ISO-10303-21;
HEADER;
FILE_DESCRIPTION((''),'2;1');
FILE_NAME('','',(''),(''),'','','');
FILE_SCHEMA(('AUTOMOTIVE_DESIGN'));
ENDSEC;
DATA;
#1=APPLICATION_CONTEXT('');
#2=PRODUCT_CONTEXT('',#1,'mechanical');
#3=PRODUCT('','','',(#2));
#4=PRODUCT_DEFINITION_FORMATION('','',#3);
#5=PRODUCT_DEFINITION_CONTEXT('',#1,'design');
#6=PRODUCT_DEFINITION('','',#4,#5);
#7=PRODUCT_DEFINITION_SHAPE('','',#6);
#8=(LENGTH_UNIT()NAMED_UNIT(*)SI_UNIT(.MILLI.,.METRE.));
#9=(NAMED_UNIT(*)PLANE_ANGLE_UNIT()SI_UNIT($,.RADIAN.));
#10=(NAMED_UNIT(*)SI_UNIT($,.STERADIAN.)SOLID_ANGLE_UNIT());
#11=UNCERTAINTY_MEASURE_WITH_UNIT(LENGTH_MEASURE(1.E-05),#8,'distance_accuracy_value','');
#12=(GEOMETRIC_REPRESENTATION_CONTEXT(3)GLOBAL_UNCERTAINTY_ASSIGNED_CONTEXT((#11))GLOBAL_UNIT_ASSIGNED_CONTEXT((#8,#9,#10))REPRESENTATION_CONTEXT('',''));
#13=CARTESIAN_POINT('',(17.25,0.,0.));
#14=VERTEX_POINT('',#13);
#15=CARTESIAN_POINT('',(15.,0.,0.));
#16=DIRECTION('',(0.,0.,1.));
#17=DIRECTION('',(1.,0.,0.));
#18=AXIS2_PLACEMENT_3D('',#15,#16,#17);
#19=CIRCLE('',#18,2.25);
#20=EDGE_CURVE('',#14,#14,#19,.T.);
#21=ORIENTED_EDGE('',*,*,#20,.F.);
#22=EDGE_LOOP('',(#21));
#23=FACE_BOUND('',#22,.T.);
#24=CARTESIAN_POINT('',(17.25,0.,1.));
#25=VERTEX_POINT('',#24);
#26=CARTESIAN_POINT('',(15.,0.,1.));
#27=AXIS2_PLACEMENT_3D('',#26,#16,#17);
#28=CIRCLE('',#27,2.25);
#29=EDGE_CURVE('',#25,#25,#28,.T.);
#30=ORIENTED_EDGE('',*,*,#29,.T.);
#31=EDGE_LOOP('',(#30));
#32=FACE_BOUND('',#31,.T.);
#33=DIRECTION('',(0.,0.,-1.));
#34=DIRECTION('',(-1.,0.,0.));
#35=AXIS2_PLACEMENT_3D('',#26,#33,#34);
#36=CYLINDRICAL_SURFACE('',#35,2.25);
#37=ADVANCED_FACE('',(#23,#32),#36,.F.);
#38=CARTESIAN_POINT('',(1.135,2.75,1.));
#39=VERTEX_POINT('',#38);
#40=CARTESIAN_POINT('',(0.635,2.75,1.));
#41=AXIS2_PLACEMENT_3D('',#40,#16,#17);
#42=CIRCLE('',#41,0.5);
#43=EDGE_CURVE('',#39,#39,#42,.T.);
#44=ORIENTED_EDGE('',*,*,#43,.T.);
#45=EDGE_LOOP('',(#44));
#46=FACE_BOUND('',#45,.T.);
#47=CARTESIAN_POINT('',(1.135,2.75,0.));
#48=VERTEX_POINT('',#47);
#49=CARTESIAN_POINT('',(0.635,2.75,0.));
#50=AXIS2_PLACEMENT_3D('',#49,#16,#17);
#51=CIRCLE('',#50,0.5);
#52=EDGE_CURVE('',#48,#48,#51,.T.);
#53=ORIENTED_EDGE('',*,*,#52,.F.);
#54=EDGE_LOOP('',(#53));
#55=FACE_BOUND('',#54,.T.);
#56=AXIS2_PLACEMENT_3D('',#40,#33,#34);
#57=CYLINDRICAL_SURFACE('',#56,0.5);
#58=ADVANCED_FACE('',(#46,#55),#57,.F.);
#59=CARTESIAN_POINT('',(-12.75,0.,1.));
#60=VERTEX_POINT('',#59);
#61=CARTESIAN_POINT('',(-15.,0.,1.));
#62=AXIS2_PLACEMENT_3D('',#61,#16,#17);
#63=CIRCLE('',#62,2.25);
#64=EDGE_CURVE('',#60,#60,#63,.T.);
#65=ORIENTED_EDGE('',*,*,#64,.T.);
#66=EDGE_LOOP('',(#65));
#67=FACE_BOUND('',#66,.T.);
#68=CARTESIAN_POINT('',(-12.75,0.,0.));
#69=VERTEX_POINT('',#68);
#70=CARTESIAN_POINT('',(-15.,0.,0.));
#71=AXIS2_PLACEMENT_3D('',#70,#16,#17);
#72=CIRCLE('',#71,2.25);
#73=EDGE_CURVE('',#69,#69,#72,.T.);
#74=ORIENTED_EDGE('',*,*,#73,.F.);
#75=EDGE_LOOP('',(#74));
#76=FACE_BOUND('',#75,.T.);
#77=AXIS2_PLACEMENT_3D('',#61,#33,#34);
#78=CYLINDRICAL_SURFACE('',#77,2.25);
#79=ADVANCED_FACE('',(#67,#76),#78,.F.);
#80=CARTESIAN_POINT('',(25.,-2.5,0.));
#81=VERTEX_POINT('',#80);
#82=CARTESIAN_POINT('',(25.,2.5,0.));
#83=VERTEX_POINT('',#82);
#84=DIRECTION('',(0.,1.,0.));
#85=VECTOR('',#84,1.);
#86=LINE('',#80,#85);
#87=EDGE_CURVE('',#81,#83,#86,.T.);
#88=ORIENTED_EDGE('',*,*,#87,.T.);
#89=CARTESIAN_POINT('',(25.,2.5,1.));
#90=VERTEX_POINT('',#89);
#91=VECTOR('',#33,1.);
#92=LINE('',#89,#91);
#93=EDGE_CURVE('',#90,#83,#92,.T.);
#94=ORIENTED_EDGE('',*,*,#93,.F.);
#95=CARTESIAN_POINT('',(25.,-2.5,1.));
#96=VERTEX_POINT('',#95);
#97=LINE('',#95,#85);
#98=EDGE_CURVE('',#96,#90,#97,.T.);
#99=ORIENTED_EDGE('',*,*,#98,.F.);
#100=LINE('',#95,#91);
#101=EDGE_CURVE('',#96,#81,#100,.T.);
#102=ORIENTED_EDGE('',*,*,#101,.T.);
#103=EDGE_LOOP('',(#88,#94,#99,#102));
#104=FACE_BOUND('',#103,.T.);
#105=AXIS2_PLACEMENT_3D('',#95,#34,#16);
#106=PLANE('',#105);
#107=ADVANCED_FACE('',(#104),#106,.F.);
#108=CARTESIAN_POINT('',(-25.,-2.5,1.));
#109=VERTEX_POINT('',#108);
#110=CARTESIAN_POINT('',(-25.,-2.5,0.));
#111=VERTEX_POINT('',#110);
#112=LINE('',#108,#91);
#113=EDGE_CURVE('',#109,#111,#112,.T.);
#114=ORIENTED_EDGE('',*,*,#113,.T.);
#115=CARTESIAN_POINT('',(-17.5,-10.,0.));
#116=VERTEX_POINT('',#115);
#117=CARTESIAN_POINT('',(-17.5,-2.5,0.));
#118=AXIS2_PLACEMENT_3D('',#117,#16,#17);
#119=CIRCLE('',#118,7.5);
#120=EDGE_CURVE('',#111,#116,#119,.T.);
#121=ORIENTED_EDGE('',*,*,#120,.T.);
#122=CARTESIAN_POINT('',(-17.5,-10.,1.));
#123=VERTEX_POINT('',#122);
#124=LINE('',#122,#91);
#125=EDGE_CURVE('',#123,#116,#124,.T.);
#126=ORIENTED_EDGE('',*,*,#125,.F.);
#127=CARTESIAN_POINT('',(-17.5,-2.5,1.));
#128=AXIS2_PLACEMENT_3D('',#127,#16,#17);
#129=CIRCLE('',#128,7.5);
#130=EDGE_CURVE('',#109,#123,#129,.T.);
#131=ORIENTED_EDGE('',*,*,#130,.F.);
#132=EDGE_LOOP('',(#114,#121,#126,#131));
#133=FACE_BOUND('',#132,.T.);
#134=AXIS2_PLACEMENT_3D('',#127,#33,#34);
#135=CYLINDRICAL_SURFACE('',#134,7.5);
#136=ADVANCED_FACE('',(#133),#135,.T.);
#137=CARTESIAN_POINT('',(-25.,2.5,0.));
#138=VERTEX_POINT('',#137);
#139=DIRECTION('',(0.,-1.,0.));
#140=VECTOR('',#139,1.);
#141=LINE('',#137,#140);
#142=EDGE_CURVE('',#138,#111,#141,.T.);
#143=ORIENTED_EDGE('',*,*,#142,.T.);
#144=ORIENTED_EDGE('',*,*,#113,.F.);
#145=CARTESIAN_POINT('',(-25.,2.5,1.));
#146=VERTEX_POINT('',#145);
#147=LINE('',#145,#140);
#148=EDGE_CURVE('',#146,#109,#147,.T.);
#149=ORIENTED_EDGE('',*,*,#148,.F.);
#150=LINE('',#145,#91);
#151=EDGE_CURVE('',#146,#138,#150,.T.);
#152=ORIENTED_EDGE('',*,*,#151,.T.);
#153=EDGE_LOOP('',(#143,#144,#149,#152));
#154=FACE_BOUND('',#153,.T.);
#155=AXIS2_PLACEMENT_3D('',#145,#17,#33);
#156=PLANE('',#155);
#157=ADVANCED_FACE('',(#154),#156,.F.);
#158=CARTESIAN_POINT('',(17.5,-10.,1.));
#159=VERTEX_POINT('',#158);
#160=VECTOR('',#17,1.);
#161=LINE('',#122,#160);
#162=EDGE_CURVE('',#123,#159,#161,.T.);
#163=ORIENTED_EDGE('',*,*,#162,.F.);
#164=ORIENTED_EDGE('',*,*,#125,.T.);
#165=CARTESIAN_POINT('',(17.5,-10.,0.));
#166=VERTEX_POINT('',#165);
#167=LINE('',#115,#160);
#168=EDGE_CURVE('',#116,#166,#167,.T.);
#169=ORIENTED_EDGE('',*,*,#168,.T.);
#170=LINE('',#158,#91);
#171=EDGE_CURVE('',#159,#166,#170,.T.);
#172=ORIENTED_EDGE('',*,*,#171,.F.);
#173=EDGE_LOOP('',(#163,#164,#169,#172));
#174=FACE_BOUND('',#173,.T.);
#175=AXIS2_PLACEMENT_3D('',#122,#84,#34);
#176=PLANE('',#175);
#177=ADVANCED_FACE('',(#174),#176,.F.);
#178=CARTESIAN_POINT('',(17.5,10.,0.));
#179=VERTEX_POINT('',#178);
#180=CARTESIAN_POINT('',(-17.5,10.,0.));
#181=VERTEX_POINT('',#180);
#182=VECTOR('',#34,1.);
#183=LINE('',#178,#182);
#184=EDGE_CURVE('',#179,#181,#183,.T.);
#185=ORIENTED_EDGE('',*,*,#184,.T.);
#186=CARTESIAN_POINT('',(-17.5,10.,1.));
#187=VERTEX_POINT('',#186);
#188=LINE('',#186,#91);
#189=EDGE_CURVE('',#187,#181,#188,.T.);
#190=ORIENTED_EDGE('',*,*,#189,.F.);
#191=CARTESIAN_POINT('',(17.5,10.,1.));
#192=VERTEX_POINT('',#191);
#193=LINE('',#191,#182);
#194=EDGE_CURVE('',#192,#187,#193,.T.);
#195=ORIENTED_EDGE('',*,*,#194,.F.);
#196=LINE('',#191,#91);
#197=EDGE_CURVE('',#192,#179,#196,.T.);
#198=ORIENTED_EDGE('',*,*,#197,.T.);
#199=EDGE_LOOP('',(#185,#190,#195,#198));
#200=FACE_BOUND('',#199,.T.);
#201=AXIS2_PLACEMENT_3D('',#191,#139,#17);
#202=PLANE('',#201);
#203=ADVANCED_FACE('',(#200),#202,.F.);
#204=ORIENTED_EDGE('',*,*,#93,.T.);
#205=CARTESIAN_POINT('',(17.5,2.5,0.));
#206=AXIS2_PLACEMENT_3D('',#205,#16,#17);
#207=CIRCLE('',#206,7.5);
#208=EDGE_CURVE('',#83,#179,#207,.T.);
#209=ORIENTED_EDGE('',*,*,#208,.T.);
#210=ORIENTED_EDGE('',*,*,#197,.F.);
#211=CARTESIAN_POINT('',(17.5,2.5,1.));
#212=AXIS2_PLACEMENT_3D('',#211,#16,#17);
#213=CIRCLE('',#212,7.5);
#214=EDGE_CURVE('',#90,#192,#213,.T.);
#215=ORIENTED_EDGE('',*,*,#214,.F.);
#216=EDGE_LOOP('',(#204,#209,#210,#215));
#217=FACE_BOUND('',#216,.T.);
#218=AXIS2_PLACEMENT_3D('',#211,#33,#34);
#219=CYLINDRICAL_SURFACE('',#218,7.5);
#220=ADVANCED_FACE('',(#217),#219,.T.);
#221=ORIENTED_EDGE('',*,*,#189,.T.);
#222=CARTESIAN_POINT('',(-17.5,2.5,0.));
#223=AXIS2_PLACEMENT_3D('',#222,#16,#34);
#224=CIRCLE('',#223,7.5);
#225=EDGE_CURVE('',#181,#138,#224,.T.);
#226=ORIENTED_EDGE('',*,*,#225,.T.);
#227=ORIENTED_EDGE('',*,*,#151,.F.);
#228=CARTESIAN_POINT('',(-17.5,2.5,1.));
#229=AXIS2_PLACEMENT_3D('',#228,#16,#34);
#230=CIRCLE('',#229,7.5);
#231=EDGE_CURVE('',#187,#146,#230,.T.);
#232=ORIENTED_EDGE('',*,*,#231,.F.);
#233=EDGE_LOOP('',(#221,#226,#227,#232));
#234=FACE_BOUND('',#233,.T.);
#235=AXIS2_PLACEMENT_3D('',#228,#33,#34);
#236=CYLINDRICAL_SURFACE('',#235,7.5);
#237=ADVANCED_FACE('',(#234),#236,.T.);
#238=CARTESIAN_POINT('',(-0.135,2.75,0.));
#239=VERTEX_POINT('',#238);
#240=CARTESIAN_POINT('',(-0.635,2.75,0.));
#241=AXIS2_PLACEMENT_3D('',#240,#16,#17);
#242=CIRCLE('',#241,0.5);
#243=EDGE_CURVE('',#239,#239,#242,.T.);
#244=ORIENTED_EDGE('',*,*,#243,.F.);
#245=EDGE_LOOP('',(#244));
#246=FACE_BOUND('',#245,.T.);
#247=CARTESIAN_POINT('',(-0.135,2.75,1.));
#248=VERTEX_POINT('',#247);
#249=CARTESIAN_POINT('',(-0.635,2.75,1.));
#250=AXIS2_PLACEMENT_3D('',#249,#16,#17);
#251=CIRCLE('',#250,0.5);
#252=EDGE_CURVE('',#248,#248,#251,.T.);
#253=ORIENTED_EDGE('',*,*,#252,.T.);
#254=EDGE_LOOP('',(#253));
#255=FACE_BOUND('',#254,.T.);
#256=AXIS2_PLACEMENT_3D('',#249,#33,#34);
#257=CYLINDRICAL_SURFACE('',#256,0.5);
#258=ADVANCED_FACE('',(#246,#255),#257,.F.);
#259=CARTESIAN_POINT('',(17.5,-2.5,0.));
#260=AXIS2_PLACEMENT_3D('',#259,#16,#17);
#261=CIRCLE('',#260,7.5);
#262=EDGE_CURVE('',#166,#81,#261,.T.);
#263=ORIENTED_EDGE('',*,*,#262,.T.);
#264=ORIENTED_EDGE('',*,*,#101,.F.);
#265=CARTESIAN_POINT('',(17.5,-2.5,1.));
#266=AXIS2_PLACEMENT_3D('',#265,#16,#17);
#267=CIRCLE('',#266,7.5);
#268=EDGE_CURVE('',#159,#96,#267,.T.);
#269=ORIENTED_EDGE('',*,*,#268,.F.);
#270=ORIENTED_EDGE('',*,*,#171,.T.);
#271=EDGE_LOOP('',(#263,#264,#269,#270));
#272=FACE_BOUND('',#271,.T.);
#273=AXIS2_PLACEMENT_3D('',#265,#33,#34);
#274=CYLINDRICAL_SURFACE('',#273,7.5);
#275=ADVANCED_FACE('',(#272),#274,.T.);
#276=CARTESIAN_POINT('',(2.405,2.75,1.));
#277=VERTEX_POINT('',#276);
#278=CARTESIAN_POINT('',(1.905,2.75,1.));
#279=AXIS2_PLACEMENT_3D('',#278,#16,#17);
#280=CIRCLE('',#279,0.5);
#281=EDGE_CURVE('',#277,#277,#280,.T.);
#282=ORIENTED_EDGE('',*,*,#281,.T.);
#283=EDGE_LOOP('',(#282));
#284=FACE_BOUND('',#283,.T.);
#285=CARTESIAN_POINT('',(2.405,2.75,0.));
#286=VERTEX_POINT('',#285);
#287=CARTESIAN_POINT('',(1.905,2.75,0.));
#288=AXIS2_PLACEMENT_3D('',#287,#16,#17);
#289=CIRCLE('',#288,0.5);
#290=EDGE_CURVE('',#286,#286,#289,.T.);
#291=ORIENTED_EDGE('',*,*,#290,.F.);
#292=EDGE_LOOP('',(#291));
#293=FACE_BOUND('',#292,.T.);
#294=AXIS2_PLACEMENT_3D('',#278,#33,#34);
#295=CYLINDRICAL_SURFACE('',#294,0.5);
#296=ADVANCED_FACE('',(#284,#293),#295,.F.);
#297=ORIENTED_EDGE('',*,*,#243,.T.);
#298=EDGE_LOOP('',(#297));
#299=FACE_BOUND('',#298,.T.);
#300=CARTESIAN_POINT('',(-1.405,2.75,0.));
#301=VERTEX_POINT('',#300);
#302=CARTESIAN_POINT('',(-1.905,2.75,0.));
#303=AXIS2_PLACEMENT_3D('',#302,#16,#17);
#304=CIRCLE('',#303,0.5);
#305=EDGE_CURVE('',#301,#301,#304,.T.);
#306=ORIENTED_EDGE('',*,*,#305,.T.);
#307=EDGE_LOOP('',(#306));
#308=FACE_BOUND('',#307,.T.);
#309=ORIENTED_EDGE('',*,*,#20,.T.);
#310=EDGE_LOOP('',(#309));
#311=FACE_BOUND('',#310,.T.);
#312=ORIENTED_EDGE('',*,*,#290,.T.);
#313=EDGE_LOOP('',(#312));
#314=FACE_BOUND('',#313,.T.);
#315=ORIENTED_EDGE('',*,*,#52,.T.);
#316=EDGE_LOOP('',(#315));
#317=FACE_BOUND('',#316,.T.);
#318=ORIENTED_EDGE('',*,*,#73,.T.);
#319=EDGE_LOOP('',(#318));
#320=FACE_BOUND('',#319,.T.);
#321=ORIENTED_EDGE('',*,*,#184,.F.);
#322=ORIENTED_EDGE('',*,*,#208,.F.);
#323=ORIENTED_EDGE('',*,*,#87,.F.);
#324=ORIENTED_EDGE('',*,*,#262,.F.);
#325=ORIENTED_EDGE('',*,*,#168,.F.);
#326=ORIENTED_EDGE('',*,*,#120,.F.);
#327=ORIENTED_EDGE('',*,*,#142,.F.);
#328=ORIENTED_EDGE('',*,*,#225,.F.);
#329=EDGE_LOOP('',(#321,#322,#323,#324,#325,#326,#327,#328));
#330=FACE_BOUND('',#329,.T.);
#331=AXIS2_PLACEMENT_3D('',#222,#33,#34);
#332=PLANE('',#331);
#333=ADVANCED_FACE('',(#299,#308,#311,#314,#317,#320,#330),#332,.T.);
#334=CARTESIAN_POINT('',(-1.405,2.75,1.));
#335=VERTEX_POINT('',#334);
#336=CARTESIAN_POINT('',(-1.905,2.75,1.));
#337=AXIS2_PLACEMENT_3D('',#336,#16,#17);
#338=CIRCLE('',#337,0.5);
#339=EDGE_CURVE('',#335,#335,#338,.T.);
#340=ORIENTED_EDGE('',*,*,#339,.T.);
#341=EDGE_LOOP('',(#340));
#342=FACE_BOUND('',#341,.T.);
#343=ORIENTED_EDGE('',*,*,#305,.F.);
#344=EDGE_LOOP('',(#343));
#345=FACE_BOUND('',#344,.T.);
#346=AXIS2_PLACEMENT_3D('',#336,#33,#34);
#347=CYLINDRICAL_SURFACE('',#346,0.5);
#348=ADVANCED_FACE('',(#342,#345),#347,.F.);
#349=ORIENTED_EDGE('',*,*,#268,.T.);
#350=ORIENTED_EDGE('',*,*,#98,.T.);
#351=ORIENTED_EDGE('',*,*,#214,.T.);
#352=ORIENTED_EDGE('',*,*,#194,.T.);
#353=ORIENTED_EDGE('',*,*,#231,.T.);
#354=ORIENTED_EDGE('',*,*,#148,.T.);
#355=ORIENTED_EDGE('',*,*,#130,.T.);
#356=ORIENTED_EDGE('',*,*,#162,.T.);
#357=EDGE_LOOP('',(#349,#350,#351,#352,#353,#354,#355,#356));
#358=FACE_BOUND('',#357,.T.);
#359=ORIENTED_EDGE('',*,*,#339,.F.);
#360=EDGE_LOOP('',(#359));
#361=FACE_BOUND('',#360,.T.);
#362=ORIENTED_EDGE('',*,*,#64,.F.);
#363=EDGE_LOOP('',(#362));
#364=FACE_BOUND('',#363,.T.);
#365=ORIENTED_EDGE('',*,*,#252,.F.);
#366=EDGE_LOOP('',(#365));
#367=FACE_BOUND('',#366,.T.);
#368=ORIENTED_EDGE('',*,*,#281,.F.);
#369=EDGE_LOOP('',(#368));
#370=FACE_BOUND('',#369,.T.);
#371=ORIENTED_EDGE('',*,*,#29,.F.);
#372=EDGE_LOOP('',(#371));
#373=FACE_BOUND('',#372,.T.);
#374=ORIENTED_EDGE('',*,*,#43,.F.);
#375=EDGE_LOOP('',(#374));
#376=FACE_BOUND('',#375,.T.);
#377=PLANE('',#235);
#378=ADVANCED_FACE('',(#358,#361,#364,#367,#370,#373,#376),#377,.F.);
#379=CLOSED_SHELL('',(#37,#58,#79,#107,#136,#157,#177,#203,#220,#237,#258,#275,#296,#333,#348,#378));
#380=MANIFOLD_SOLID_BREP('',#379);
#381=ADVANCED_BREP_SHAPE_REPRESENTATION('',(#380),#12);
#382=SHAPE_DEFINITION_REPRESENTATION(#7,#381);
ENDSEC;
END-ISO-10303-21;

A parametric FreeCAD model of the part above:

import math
import FreeCAD as App
import Part
import Sketcher

V = App.Vector

doc = App.newDocument("Part")
body = doc.addObject("PartDesign::Body", "Body")

sketch1 = doc.addObject("Sketcher::SketchObject", "Sketch")
body.addObject(sketch1)
sketch1.AttachmentSupport = (doc.XY_Plane, [""])
sketch1.MapMode = "FlatFace"
sketch1.addGeometry([
    Part.LineSegment(V(-25, 2.5, 0), V(-25, -2.5, 0)),
    Part.ArcOfCircle(Part.Circle(V(-17.5, -2.5, 0), V(0, 0, 1), 7.5), math.radians(180), math.radians(270)),
    Part.LineSegment(V(-17.5, -10, 0), V(17.5, -10, 0)),
    Part.ArcOfCircle(Part.Circle(V(17.5, -2.5, 0), V(0, 0, 1), 7.5), math.radians(-90), math.radians(0)),
    Part.LineSegment(V(25, -2.5, 0), V(25, 2.5, 0)),
    Part.ArcOfCircle(Part.Circle(V(17.5, 2.5, 0), V(0, 0, 1), 7.5), math.radians(0), math.radians(90)),
    Part.LineSegment(V(17.5, 10, 0), V(-17.5, 10, 0)),
    Part.ArcOfCircle(Part.Circle(V(-17.5, 2.5, 0), V(0, 0, 1), 7.5), math.radians(90), math.radians(180)),
    Part.Circle(V(-15, 0, 0), V(0, 0, 1), 2.2),
    Part.Circle(V(15, 0, 0), V(0, 0, 1), 2.2),
    Part.Circle(V(-1.9, 2.8, 0), V(0, 0, 1), 0.5),
    Part.Circle(V(-0.6, 2.8, 0), V(0, 0, 1), 0.5),
    Part.Circle(V(0.6, 2.8, 0), V(0, 0, 1), 0.5),
    Part.Circle(V(1.9, 2.8, 0), V(0, 0, 1), 0.5),
], False)
sketch1.addConstraint([
    Sketcher.Constraint("Tangent", 0, 2, 1, 1),
    Sketcher.Constraint("Tangent", 1, 2, 2, 1),
    Sketcher.Constraint("Tangent", 2, 2, 3, 1),
    Sketcher.Constraint("Tangent", 3, 2, 4, 1),
    Sketcher.Constraint("Tangent", 4, 2, 5, 1),
    Sketcher.Constraint("Tangent", 5, 2, 6, 1),
    Sketcher.Constraint("Tangent", 6, 2, 7, 1),
    Sketcher.Constraint("Tangent", 7, 2, 0, 1),
    Sketcher.Constraint("Vertical", 0),
    Sketcher.Constraint("Horizontal", 2),
    Sketcher.Constraint("Vertical", 4),
    Sketcher.Constraint("Horizontal", 6),
    Sketcher.Constraint("Equal", 1, 3),
    Sketcher.Constraint("Equal", 3, 5),
    Sketcher.Constraint("Equal", 5, 7),
    Sketcher.Constraint("Equal", 8, 9),
    Sketcher.Constraint("Equal", 10, 11),
    Sketcher.Constraint("Equal", 11, 12),
    Sketcher.Constraint("Equal", 12, 13),
    Sketcher.Constraint("Symmetric", 1, 3, 5, 3, -1, 1),
    Sketcher.Constraint("Symmetric", 8, 3, 9, 3, -1, 1),
    Sketcher.Constraint("Symmetric", 11, 3, 12, 3, -2),
    Sketcher.Constraint("Symmetric", 10, 3, 13, 3, -2),
    Sketcher.Constraint("PointOnObject", 8, 3, -1),
    Sketcher.Constraint("Horizontal", 10, 3, 11, 3),
    Sketcher.Constraint("Diameter", 10, 1.0),
    Sketcher.Constraint("Diameter", 8, 4.5),
    Sketcher.Constraint("Radius", 1, 7.5),
    Sketcher.Constraint("DistanceX", 2, 1, 2, 2, 35.0),
    Sketcher.Constraint("DistanceY", 0, 2, 0, 1, 5.0),
    Sketcher.Constraint("DistanceX", 8, 3, -1, 1, 15.0),
    Sketcher.Constraint("DistanceY", -1, 1, 10, 3, 2.75),
    Sketcher.Constraint("DistanceX", 10, 3, 11, 3, 1.27),
    Sketcher.Constraint("DistanceX", 11, 3, 12, 3, 1.27),
])
pad1 = doc.addObject("PartDesign::Pad", "Pad")
body.addObject(pad1)
pad1.Profile = sketch1
pad1.Length = 1

doc.recompute()
